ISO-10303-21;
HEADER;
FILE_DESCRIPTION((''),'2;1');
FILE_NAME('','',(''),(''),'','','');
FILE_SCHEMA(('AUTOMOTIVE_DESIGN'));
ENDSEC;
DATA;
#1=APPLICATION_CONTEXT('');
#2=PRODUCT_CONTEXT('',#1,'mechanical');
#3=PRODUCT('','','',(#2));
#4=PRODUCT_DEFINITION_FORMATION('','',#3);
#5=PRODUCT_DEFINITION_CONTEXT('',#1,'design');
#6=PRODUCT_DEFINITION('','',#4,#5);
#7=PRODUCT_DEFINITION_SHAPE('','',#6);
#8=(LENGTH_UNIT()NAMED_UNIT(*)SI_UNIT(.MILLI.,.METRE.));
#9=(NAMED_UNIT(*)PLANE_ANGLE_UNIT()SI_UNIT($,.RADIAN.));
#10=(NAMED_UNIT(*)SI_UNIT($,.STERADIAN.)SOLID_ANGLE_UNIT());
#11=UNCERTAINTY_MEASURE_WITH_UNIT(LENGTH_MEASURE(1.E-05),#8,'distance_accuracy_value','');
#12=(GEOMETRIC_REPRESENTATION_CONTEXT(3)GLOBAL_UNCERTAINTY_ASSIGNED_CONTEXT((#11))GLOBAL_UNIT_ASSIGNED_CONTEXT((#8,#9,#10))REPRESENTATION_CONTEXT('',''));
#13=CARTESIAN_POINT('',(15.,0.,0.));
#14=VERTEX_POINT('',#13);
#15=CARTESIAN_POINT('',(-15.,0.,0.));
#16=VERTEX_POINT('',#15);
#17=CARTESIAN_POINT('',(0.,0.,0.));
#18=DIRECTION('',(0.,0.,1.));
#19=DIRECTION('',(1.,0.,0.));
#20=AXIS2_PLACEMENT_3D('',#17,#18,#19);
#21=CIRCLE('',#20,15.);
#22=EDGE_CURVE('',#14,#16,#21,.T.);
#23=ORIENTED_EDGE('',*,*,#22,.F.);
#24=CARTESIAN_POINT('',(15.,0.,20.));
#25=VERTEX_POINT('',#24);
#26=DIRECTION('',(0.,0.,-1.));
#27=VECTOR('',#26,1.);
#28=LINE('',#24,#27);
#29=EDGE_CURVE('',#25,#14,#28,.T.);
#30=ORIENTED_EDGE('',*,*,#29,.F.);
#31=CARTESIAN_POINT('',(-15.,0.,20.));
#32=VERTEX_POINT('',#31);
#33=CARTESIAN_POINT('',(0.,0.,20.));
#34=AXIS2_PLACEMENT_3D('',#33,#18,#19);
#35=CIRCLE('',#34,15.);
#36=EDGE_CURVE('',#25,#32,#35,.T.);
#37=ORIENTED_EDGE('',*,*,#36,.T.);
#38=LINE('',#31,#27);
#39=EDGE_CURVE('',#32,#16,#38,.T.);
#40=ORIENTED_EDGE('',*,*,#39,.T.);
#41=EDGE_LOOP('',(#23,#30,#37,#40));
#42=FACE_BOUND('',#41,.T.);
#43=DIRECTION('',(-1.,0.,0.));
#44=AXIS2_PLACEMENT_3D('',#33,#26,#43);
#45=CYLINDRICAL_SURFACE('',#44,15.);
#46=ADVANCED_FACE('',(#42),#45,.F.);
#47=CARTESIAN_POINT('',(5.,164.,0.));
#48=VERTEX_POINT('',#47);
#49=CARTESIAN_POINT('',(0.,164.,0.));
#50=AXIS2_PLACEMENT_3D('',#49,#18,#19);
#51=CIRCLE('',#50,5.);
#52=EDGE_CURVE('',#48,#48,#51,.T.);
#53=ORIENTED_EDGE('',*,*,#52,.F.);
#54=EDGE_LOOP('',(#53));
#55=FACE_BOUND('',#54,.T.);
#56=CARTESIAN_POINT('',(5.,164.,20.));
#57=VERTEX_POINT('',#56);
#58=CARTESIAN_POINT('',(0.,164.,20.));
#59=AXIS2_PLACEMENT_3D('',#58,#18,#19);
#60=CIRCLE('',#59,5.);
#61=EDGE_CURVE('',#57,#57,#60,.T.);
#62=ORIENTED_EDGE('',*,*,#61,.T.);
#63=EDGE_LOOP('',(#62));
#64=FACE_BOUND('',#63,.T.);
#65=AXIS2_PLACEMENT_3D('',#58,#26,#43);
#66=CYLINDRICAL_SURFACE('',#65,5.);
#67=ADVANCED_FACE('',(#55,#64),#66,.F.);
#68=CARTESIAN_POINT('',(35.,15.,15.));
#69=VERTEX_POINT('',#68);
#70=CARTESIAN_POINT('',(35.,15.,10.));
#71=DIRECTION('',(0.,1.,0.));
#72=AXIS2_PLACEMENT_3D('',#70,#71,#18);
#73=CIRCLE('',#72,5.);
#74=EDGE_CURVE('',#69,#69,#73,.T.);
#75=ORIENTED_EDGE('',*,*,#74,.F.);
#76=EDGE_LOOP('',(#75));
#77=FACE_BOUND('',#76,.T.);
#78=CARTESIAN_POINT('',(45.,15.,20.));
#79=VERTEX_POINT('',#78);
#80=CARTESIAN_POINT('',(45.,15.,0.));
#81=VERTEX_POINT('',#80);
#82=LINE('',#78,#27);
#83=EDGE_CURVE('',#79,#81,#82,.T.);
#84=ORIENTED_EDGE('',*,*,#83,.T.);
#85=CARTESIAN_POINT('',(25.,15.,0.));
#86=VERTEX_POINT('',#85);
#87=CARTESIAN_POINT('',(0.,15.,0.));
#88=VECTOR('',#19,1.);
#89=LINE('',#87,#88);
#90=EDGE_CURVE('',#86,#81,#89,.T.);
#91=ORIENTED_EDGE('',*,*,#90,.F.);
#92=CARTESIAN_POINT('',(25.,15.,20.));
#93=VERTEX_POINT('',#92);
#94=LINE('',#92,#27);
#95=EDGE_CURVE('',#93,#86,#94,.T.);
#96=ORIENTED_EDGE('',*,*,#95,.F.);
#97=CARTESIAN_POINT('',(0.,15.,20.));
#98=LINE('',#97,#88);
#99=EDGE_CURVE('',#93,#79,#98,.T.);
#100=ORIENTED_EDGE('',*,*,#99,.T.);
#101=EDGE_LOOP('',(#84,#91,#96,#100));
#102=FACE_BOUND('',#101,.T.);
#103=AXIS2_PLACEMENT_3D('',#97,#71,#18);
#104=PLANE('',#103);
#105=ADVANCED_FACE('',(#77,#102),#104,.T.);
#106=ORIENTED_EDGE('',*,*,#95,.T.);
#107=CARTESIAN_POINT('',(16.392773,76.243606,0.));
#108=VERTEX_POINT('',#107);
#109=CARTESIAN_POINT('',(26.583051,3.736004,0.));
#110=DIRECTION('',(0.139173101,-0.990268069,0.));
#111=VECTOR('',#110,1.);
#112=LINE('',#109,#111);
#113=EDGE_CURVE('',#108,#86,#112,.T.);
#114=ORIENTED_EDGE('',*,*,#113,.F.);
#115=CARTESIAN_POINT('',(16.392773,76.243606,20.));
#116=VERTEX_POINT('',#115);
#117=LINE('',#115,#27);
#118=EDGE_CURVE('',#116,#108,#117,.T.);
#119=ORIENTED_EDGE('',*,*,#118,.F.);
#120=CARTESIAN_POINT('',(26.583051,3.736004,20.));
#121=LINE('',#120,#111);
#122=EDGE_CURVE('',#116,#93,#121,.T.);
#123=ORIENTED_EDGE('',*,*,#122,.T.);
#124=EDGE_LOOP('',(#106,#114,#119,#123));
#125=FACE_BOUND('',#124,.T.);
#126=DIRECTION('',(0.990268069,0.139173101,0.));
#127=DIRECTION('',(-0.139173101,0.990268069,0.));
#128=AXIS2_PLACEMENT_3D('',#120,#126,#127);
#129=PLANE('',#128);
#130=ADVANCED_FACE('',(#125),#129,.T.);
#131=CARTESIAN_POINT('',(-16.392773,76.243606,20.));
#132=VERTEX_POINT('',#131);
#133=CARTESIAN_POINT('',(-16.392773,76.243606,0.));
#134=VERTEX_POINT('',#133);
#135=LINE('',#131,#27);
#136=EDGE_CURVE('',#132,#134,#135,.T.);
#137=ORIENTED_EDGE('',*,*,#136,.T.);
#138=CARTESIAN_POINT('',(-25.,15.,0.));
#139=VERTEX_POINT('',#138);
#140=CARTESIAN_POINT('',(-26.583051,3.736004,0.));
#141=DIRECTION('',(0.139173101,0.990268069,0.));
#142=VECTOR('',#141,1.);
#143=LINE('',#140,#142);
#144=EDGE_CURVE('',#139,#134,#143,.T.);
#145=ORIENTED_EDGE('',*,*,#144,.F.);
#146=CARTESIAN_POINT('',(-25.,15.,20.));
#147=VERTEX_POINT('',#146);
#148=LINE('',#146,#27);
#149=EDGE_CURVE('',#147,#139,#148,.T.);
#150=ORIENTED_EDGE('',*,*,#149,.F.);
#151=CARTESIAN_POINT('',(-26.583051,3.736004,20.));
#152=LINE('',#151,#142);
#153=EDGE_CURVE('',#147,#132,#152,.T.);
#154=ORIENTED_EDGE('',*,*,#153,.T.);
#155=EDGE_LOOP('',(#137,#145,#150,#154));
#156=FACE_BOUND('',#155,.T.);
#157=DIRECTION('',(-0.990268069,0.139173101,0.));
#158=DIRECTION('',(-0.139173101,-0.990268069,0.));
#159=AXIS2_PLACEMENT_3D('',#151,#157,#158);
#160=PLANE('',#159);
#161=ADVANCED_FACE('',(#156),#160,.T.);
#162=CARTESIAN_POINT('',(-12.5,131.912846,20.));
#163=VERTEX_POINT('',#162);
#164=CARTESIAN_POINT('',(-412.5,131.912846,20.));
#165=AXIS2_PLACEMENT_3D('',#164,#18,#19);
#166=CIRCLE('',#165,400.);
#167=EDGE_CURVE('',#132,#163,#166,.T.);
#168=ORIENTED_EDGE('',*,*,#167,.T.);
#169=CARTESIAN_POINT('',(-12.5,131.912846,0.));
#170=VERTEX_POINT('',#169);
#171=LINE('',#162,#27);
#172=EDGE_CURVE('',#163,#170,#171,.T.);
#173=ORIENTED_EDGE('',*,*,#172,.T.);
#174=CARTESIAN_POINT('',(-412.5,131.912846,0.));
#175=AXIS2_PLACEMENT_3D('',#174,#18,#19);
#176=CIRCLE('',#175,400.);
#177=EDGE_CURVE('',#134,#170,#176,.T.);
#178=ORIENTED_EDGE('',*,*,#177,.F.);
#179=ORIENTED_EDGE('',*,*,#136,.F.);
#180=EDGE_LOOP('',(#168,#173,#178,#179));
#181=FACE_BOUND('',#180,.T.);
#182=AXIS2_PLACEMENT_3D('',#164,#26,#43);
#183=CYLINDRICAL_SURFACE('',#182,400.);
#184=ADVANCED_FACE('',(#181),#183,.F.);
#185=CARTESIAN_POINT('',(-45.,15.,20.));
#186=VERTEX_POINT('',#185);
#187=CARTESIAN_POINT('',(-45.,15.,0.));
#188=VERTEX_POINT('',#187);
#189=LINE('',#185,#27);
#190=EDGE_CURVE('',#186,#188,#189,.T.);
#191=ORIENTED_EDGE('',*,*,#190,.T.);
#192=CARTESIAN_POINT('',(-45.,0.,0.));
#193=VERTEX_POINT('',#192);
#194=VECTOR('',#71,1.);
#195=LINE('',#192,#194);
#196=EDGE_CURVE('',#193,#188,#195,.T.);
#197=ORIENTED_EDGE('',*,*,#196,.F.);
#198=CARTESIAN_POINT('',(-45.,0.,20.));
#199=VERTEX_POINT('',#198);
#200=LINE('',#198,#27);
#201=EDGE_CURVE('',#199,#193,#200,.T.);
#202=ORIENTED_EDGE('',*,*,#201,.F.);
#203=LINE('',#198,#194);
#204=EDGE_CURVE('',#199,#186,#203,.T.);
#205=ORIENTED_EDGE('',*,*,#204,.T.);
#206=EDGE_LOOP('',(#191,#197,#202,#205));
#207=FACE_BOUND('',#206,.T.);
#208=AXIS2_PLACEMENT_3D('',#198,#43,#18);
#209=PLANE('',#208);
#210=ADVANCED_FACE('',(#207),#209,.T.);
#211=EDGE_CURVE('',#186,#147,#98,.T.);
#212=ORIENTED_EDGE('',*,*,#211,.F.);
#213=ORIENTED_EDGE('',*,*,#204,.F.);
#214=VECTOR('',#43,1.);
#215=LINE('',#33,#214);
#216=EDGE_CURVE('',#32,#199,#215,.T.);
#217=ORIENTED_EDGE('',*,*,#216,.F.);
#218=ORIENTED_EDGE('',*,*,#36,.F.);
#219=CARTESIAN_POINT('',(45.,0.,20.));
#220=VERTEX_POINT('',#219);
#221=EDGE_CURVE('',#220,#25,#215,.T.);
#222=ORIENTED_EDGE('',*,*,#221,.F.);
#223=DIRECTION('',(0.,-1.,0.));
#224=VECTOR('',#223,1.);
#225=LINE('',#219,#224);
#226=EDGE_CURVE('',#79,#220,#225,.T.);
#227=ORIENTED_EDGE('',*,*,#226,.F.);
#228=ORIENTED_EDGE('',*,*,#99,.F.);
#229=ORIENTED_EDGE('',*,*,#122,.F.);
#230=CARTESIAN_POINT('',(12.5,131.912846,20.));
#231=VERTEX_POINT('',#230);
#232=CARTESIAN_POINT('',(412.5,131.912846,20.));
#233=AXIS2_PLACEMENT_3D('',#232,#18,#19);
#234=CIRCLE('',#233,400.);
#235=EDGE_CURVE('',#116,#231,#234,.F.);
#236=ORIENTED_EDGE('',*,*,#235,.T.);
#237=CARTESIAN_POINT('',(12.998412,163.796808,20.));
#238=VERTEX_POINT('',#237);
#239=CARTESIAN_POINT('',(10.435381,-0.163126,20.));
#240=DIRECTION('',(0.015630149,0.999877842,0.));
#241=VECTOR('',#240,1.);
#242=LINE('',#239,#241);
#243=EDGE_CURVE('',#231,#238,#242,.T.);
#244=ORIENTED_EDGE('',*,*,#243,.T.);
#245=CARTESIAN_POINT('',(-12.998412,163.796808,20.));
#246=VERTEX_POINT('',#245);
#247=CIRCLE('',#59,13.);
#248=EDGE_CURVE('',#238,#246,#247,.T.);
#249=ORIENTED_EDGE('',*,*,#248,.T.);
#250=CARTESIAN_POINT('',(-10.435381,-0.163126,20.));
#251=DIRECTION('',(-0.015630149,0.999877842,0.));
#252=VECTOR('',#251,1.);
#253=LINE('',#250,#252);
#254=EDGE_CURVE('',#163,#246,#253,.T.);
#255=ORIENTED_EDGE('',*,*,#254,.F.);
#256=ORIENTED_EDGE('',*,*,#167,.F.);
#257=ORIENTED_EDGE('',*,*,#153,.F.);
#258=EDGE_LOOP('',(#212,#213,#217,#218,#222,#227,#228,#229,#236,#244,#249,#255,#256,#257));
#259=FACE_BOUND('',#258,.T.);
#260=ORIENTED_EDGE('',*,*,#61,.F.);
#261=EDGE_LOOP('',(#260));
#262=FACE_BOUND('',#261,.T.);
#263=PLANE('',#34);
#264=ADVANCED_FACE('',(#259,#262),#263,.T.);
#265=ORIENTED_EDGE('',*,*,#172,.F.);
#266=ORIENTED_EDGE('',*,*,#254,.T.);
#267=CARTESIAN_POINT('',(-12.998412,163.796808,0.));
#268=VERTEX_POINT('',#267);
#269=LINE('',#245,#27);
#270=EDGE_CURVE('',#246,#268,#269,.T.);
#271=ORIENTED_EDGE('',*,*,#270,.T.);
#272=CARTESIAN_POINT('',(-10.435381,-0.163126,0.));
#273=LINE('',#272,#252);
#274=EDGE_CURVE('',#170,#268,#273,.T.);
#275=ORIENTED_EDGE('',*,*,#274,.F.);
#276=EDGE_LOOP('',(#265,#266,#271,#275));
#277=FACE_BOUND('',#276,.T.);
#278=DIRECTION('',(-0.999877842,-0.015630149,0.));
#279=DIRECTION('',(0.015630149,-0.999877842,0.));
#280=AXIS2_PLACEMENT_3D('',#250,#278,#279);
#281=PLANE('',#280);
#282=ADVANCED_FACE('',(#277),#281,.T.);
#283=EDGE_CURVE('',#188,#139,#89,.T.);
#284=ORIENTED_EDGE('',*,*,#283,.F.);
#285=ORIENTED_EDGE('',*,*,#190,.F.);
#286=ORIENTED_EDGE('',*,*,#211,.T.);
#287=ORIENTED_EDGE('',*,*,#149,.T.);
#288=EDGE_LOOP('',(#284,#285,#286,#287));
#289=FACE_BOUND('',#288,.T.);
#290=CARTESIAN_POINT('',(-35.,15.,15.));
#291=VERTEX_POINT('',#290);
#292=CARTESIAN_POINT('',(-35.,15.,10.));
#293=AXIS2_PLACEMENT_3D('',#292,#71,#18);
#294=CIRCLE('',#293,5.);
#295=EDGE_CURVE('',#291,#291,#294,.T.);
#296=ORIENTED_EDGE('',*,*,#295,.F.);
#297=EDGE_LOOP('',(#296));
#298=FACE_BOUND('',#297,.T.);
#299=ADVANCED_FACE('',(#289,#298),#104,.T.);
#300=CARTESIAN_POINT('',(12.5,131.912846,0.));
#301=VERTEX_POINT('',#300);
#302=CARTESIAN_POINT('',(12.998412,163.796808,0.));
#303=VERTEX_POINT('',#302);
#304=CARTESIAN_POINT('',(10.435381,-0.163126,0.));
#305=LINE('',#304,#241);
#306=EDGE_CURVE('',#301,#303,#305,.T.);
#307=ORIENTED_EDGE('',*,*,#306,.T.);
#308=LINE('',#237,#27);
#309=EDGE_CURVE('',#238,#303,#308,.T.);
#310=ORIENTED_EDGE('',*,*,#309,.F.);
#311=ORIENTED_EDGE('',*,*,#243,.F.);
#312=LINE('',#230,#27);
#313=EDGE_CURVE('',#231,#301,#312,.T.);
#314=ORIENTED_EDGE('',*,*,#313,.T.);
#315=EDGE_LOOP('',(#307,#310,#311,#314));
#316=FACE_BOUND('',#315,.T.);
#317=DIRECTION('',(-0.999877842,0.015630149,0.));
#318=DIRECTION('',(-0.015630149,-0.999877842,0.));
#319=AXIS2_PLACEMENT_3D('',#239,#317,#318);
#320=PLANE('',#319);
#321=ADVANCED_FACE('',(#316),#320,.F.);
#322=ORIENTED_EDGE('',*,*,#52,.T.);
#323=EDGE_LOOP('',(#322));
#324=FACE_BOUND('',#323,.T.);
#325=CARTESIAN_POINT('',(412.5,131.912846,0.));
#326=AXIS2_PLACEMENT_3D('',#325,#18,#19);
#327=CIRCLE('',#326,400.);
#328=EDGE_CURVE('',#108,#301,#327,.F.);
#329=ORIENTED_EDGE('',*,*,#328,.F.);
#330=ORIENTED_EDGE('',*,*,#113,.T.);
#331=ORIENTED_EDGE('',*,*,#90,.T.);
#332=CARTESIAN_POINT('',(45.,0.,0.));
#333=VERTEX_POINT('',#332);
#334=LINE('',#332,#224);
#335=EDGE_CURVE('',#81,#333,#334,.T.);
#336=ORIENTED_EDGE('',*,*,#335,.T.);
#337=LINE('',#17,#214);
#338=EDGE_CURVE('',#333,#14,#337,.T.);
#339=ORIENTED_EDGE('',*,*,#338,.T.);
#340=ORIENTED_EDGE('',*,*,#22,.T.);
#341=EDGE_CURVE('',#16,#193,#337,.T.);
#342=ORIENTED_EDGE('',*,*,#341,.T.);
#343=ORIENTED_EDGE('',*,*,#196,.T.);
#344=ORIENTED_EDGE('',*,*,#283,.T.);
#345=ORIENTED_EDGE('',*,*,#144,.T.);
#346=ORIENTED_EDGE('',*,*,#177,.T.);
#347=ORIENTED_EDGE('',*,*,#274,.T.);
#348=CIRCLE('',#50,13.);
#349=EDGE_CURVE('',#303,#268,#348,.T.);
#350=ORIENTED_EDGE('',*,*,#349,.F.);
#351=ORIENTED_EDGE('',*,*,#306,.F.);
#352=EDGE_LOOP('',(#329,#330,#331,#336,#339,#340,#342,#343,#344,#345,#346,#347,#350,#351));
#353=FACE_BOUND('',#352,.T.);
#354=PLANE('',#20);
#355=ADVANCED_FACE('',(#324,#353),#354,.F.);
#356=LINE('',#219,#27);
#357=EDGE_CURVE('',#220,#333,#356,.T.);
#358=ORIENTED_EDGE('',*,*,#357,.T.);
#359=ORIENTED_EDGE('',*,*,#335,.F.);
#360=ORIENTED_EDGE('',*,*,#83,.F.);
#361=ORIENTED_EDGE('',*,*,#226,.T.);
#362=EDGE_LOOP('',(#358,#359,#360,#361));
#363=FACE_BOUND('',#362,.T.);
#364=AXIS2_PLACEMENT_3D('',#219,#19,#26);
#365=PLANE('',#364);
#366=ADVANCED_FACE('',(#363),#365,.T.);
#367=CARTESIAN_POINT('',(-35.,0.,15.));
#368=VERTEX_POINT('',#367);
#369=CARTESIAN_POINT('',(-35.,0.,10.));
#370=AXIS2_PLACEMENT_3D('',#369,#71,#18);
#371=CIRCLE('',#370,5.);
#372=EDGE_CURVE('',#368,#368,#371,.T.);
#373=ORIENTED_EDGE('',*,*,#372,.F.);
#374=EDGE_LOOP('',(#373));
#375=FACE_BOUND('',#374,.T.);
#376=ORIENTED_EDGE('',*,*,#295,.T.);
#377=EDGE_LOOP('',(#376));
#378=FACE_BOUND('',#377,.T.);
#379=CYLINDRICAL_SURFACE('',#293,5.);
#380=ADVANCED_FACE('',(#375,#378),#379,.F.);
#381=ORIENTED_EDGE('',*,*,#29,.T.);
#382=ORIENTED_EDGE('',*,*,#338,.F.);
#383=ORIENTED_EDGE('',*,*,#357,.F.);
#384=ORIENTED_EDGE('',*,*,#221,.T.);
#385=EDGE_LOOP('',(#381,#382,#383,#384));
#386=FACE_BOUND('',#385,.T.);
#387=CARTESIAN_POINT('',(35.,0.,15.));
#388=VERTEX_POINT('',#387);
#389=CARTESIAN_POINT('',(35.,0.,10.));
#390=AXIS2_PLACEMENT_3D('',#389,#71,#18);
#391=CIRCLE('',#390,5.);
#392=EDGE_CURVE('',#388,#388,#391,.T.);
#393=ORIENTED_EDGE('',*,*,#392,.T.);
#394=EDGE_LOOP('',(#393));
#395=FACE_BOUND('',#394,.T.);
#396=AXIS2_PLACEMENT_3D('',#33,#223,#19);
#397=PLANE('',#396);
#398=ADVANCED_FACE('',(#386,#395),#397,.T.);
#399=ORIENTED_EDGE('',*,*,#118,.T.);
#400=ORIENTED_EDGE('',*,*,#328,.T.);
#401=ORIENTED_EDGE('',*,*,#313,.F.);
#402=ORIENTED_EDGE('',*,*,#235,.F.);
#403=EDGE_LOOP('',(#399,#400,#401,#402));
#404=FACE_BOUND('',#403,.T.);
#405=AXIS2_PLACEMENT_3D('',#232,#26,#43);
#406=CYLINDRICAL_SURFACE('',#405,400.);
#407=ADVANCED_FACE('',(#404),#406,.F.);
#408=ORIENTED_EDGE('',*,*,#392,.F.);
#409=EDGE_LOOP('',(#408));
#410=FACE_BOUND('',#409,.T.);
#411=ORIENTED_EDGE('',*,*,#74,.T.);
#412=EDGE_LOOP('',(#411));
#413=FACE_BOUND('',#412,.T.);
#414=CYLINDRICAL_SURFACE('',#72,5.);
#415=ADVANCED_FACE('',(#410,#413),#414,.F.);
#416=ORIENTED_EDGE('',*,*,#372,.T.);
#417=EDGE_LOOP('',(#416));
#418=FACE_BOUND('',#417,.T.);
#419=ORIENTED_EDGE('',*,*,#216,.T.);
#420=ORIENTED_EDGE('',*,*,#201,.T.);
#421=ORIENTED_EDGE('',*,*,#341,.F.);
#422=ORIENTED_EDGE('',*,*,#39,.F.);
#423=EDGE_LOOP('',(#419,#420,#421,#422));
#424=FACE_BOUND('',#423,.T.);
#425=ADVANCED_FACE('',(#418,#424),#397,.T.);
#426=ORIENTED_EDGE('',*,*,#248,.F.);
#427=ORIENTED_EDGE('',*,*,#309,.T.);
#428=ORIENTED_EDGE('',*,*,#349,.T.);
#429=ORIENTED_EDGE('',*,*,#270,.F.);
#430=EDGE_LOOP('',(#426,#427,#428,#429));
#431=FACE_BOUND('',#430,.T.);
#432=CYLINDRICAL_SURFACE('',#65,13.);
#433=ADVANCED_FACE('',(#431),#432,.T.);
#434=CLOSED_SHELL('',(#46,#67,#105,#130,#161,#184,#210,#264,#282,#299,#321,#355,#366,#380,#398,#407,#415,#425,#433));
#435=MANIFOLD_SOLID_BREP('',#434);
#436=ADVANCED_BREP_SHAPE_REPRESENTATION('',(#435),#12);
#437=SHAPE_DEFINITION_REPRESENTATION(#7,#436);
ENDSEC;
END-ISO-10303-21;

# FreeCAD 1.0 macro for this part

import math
import FreeCAD as App
import Part
import Sketcher

V = App.Vector
Q = App.Units.Quantity

doc = App.newDocument("Part")
params = doc.addObject("Spreadsheet::Sheet", "Params")
for row, (alias, value) in enumerate([
    ("sketch1_diameter", "10 mm"),
    ("sketch1_radius", "13 mm"),
    ("sketch1_radius2", "400 mm"),
    ("sketch1_radius3", "15 mm"),
    ("sketch1_width", "20 mm"),
    ("pad1_length", "20 mm"),
    ("sketch2_diameter", "10 mm"),
    ("hole_diameter", "10 mm"),
], start=1):
    params.set(f"A{row}", alias)
    params.set(f"B{row}", "=" + value)
    params.setAlias(f"B{row}", alias)

body = doc.addObject("PartDesign::Body", "Body")

sketch1 = body.newObject("Sketcher::SketchObject", "Sketch")
sketch1.AttachmentSupport = (doc.getObject("XY_Plane"), [""])
sketch1.MapMode = "FlatFace"
sketch1.addGeometry([
    Part.LineSegment(V(12, 132, 0), V(13, 164, 0)),
    Part.ArcOfCircle(Part.Circle(V(0, 164, 0), V(0, 0, 1), 13), math.radians(-1), math.radians(181)),
    Part.LineSegment(V(-13, 164, 0), V(-12, 132, 0)),
    Part.ArcOfCircle(Part.Circle(V(-413, 132, 0), V(0, 0, 1), 400), math.radians(-8), math.radians(0)),
    Part.LineSegment(V(-16, 76, 0), V(-25, 15, 0)),
    Part.LineSegment(V(-25, 15, 0), V(-45, 15, 0)),
    Part.LineSegment(V(-45, 15, 0), V(-45, 0, 0)),
    Part.LineSegment(V(-45, 0, 0), V(-15, 0, 0)),
    Part.ArcOfCircle(Part.Circle(V(0, 0, 0), V(0, 0, 1), 15), math.radians(0), math.radians(180)),
    Part.LineSegment(V(15, 0, 0), V(45, 0, 0)),
    Part.LineSegment(V(45, 0, 0), V(45, 15, 0)),
    Part.LineSegment(V(45, 15, 0), V(25, 15, 0)),
    Part.LineSegment(V(25, 15, 0), V(16, 76, 0)),
    Part.ArcOfCircle(Part.Circle(V(413, 132, 0), V(0, 0, 1), 400), math.radians(-180), math.radians(-172)),
    Part.Circle(V(0, 164, 0), V(0, 0, 1), 5),
], False)
sketch1.addConstraint([
    Sketcher.Constraint("Tangent", 0, 2, 1, 1),
    Sketcher.Constraint("Tangent", 1, 2, 2, 1),
    Sketcher.Constraint("Coincident", 2, 2, 3, 2),
    Sketcher.Constraint("Tangent", 3, 1, 4, 1),
    Sketcher.Constraint("Coincident", 4, 2, 5, 1),
    Sketcher.Constraint("Coincident", 5, 2, 6, 1),
    Sketcher.Constraint("Coincident", 6, 2, 7, 1),
    Sketcher.Constraint("Coincident", 7, 2, 8, 2),
    Sketcher.Constraint("Coincident", 8, 1, 9, 1),
    Sketcher.Constraint("Coincident", 9, 2, 10, 1),
    Sketcher.Constraint("Coincident", 10, 2, 11, 1),
    Sketcher.Constraint("Coincident", 11, 2, 12, 1),
    Sketcher.Constraint("Tangent", 12, 2, 13, 2),
    Sketcher.Constraint("Coincident", 13, 1, 0, 1),
    Sketcher.Constraint("Horizontal", 5),
    Sketcher.Constraint("Vertical", 6),
    Sketcher.Constraint("Horizontal", 7),
    Sketcher.Constraint("Horizontal", 9),
    Sketcher.Constraint("Vertical", 10),
    Sketcher.Constraint("Horizontal", 11),
    Sketcher.Constraint("Coincident", 8, 3, -1, 1),
    Sketcher.Constraint("Coincident", 14, 3, 1, 3),
    Sketcher.Constraint("Equal", 3, 13),
    Sketcher.Constraint("Symmetric", 6, 2, 9, 2, -1, 1),
    Sketcher.Constraint("Symmetric", 3, 3, 13, 3, -2),
    Sketcher.Constraint("Symmetric", 4, 2, 11, 2, -2),
    Sketcher.Constraint("PointOnObject", 1, 3, -2),
    Sketcher.Constraint("PointOnObject", 6, 2, -1),
    Sketcher.Constraint("Horizontal", 13, 3, 2, 2),
    Sketcher.Constraint("Horizontal", 2, 2, 13, 1),
    Sketcher.Constraint("Diameter", 14, Q("10 mm")),
    Sketcher.Constraint("Radius", 1, Q("13 mm")),
    Sketcher.Constraint("Radius", 3, Q("400 mm")),
    Sketcher.Constraint("Radius", 8, Q("15 mm")),
    Sketcher.Constraint("DistanceX", 5, 2, 5, 1, Q("20 mm")),
    Sketcher.Constraint("DistanceX", 7, 1, 7, 2, Q("30 mm")),
    Sketcher.Constraint("DistanceY", 6, 2, 6, 1, Q("15 mm")),
    Sketcher.Constraint("Angle", 4, Q("-98 deg")),
    Sketcher.Constraint("DistanceY", -1, 1, 1, 3, Q("164 mm")),
    Sketcher.Constraint("DistanceX", 3, 3, 13, 3, Q("825 mm")),
])
sketch1.setExpression("Constraints[30]", "Params.sketch1_diameter")
sketch1.setExpression("Constraints[31]", "Params.sketch1_radius")
sketch1.setExpression("Constraints[32]", "Params.sketch1_radius2")
sketch1.setExpression("Constraints[33]", "Params.sketch1_radius3")
sketch1.setExpression("Constraints[34]", "Params.sketch1_width")
pad1 = body.newObject("PartDesign::Pad", "Pad")
pad1.Profile = sketch1
pad1.setExpression("Length", "Params.pad1_length")

sketch2 = body.newObject("Sketcher::SketchObject", "Sketch001")
sketch2.AttachmentSupport = (doc.getObject("XZ_Plane"), [""])
sketch2.MapMode = "FlatFace"
sketch2.AttachmentOffset = App.Placement(V(0, 0, -15), App.Rotation())
sketch2.addGeometry([
    Part.Circle(V(-35, 10, 0), V(0, 0, 1), 5),
    Part.Circle(V(35, 10, 0), V(0, 0, 1), 5),
], False)
sketch2.addConstraint([
    Sketcher.Constraint("Equal", 0, 1),
    Sketcher.Constraint("Symmetric", 0, 3, 1, 3, -2),
    Sketcher.Constraint("Diameter", 0, Q("10 mm")),
    Sketcher.Constraint("DistanceX", 0, 3, -1, 1, Q("35 mm")),
    Sketcher.Constraint("DistanceY", -1, 1, 0, 3, Q("10 mm")),
])
sketch2.setExpression("Constraints[2]", "Params.sketch2_diameter")
doc.recompute()
hole = body.newObject("PartDesign::Hole", "Hole")
hole.Profile = sketch2
hole.ThreadType = "None"
hole.setExpression("Diameter", "Params.hole_diameter")
hole.DepthType = "ThroughAll"
hole.Reversed = True

doc.recompute()
